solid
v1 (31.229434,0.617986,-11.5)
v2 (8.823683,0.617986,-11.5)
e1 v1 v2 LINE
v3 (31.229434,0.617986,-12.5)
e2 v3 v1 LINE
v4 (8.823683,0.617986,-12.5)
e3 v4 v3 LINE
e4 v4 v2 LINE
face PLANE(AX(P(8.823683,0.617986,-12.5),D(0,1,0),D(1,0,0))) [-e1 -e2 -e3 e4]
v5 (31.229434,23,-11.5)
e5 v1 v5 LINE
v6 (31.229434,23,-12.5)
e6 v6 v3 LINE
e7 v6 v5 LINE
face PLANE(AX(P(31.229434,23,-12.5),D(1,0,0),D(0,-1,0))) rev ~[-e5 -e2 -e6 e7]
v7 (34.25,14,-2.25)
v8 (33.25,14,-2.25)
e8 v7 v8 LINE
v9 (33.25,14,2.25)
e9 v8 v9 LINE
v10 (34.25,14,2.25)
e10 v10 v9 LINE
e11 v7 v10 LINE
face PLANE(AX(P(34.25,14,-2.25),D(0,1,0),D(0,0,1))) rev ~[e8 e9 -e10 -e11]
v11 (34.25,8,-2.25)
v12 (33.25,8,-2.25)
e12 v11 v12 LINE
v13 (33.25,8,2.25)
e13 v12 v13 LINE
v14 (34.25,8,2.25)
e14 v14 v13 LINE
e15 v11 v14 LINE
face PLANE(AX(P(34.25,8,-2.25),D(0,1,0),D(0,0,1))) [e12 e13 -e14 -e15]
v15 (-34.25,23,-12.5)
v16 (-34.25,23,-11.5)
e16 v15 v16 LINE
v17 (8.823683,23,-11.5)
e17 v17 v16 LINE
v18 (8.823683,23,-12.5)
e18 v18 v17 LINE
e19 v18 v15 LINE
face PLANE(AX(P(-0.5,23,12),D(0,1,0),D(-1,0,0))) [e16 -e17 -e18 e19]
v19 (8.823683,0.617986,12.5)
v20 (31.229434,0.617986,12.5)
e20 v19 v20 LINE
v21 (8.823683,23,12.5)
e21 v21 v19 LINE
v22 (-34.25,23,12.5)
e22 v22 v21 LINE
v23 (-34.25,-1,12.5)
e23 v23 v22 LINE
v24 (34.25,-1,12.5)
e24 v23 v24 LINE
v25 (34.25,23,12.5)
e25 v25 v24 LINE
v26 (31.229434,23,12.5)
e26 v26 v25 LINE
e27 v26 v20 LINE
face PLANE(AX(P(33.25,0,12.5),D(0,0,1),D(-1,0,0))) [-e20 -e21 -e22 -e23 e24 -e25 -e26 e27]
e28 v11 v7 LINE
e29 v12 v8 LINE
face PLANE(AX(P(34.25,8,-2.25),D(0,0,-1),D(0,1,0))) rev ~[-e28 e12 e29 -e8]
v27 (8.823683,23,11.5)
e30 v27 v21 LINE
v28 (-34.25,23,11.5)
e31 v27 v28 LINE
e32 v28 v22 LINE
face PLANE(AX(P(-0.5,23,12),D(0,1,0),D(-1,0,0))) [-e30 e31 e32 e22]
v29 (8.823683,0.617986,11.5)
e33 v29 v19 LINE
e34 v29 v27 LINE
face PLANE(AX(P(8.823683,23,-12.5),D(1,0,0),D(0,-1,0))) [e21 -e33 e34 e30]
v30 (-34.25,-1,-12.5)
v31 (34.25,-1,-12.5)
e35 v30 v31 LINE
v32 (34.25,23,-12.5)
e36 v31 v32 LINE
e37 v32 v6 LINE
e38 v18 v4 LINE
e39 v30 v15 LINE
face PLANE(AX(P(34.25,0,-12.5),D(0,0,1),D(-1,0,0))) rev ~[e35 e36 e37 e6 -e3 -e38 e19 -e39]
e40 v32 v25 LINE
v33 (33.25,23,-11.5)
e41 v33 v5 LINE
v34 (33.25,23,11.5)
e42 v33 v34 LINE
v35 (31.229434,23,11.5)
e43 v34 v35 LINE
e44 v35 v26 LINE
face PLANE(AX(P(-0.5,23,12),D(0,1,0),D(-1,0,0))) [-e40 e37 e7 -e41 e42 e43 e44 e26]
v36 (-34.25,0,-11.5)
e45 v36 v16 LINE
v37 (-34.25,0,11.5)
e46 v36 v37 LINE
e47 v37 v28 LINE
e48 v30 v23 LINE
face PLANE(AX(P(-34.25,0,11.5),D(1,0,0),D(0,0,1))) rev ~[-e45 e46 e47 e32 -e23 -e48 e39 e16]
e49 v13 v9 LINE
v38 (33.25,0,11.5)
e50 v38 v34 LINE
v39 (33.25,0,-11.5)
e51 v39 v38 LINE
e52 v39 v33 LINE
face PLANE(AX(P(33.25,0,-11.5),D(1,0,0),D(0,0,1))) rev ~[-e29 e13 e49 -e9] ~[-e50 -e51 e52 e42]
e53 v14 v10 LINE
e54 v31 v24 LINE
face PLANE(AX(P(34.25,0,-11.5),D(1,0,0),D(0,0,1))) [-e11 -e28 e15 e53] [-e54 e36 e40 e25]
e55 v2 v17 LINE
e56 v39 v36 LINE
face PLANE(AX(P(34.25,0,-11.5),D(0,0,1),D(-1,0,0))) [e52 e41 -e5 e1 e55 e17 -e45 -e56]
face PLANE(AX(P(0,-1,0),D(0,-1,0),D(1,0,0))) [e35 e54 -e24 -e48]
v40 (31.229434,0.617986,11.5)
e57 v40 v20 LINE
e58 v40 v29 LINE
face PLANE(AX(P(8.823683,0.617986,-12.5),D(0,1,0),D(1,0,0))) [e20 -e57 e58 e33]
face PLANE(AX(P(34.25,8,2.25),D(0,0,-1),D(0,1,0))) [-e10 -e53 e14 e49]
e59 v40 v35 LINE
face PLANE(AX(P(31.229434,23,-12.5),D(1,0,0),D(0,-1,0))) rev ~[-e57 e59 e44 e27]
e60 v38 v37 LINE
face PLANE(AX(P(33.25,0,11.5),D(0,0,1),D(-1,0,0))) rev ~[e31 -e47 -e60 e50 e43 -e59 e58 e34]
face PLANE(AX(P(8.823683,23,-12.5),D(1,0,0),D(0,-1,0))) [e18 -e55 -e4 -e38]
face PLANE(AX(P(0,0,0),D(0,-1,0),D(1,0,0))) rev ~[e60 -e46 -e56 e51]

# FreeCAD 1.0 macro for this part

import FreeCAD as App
import Part
import Sketcher
Q = App.Units.Quantity

doc = App.newDocument("Part")
body = doc.addObject("PartDesign::Body", "Body")

# Sketch on XZ plane
sketch1 = body.newObject("Sketcher::SketchObject", "Sketch")
sketch1.AttachmentSupport = (doc.getObject("XZ_Plane"), [""])
sketch1.MapMode = "FlatFace"
sketch1.addGeometry(Part.LineSegment(App.Vector(-34, 12, 0), App.Vector(-34, -12, 0)), False)
sketch1.addGeometry(Part.LineSegment(App.Vector(-34, -12, 0), App.Vector(34, -12, 0)), False)
sketch1.addGeometry(Part.LineSegment(App.Vector(34, -12, 0), App.Vector(34, 12, 0)), False)
sketch1.addGeometry(Part.LineSegment(App.Vector(34, 12, 0), App.Vector(-34, 12, 0)), False)
sketch1.addConstraint(Sketcher.Constraint("Coincident", 0, 2, 1, 1))
sketch1.addConstraint(Sketcher.Constraint("Coincident", 1, 2, 2, 1))
sketch1.addConstraint(Sketcher.Constraint("Coincident", 2, 2, 3, 1))
sketch1.addConstraint(Sketcher.Constraint("Coincident", 3, 2, 0, 1))
sketch1.addConstraint(Sketcher.Constraint("Vertical", 0))
sketch1.addConstraint(Sketcher.Constraint("Horizontal", 1))
sketch1.addConstraint(Sketcher.Constraint("Vertical", 2))
sketch1.addConstraint(Sketcher.Constraint("Horizontal", 3))
sketch1.addConstraint(Sketcher.Constraint("Symmetric", 0, 2, 2, 2, -1, 1))
sketch1.addConstraint(Sketcher.Constraint("DistanceY", 0, 2, 0, 1, Q("25 mm")))
sketch1.addConstraint(Sketcher.Constraint("DistanceX", 1, 1, 1, 2, Q("68.5 mm")))
pad1 = body.newObject("PartDesign::Pad", "Pad")
pad1.Profile = sketch1
pad1.Length = 1

# Sketch on XZ plane
sketch2 = body.newObject("Sketcher::SketchObject", "Sketch001")
sketch2.AttachmentSupport = (doc.getObject("XZ_Plane"), [""])
sketch2.MapMode = "FlatFace"
sketch2.addGeometry(Part.LineSegment(App.Vector(34.2, -11.5, 0), App.Vector(34.2, -12.5, 0)), False)
sketch2.addGeometry(Part.LineSegment(App.Vector(34.2, -12.5, 0), App.Vector(-34.2, -12.5, 0)), False)
sketch2.addGeometry(Part.LineSegment(App.Vector(-34.2, -12.5, 0), App.Vector(-34.2, -11.5, 0)), False)
sketch2.addGeometry(Part.LineSegment(App.Vector(-34.2, -11.5, 0), App.Vector(34.2, -11.5, 0)), False)
sketch2.addConstraint(Sketcher.Constraint("Coincident", 0, 2, 1, 1))
sketch2.addConstraint(Sketcher.Constraint("Coincident", 1, 2, 2, 1))
sketch2.addConstraint(Sketcher.Constraint("Coincident", 2, 2, 3, 1))
sketch2.addConstraint(Sketcher.Constraint("Coincident", 3, 2, 0, 1))
sketch2.addConstraint(Sketcher.Constraint("Vertical", 0))
sketch2.addConstraint(Sketcher.Constraint("Horizontal", 1))
sketch2.addConstraint(Sketcher.Constraint("Vertical", 2))
sketch2.addConstraint(Sketcher.Constraint("Horizontal", 3))
sketch2.addConstraint(Sketcher.Constraint("DistanceY", 0, 2, 0, 1, Q("1 mm")))
sketch2.addConstraint(Sketcher.Constraint("DistanceX", 1, 2, 1, 1, Q("68.5 mm")))
sketch2.addConstraint(Sketcher.Constraint("DistanceY", 0, 2, -1, 1, Q("12.5 mm")))
sketch2.addConstraint(Sketcher.Constraint("DistanceX", -1, 1, 0, 2, Q("34.25 mm")))
pad2 = body.newObject("PartDesign::Pad", "Pad001")
pad2.Profile = sketch2
pad2.Length = 23
pad2.Reversed = True

# Sketch on XZ plane
sketch3 = body.newObject("Sketcher::SketchObject", "Sketch002")
sketch3.AttachmentSupport = (doc.getObject("XZ_Plane"), [""])
sketch3.MapMode = "FlatFace"
sketch3.addGeometry(Part.LineSegment(App.Vector(34.2, 12.5, 0), App.Vector(34.2, -11.5, 0)), False)
sketch3.addGeometry(Part.LineSegment(App.Vector(34.2, -11.5, 0), App.Vector(33.2, -11.5, 0)), False)
sketch3.addGeometry(Part.LineSegment(App.Vector(33.2, -11.5, 0), App.Vector(33.2, 12.5, 0)), False)
sketch3.addGeometry(Part.LineSegment(App.Vector(33.2, 12.5, 0), App.Vector(34.2, 12.5, 0)), False)
sketch3.addConstraint(Sketcher.Constraint("Coincident", 0, 2, 1, 1))
sketch3.addConstraint(Sketcher.Constraint("Coincident", 1, 2, 2, 1))
sketch3.addConstraint(Sketcher.Constraint("Coincident", 2, 2, 3, 1))
sketch3.addConstraint(Sketcher.Constraint("Coincident", 3, 2, 0, 1))
sketch3.addConstraint(Sketcher.Constraint("Vertical", 0))
sketch3.addConstraint(Sketcher.Constraint("Horizontal", 1))
sketch3.addConstraint(Sketcher.Constraint("Vertical", 2))
sketch3.addConstraint(Sketcher.Constraint("Horizontal", 3))
sketch3.addConstraint(Sketcher.Constraint("DistanceX", 1, 2, 1, 1, Q("1 mm")))
sketch3.addConstraint(Sketcher.Constraint("DistanceY", 0, 2, 0, 1, Q("24 mm")))
sketch3.addConstraint(Sketcher.Constraint("DistanceY", 0, 2, -1, 1, Q("11.5 mm")))
sketch3.addConstraint(Sketcher.Constraint("DistanceX", -1, 1, 0, 2, Q("34.25 mm")))
pad3 = body.newObject("PartDesign::Pad", "Pad002")
pad3.Profile = sketch3
pad3.Length = 23
pad3.Reversed = True

# Sketch on XZ plane
sketch4 = body.newObject("Sketcher::SketchObject", "Sketch003")
sketch4.AttachmentSupport = (doc.getObject("XZ_Plane"), [""])
sketch4.MapMode = "FlatFace"
sketch4.addGeometry(Part.LineSegment(App.Vector(33.2, 12.5, 0), App.Vector(33.2, 11.5, 0)), False)
sketch4.addGeometry(Part.LineSegment(App.Vector(33.2, 11.5, 0), App.Vector(-34.2, 11.5, 0)), False)
sketch4.addGeometry(Part.LineSegment(App.Vector(-34.2, 11.5, 0), App.Vector(-34.2, 12.5, 0)), False)
sketch4.addGeometry(Part.LineSegment(App.Vector(-34.2, 12.5, 0), App.Vector(33.2, 12.5, 0)), False)
sketch4.addConstraint(Sketcher.Constraint("Coincident", 0, 2, 1, 1))
sketch4.addConstraint(Sketcher.Constraint("Coincident", 1, 2, 2, 1))
sketch4.addConstraint(Sketcher.Constraint("Coincident", 2, 2, 3, 1))
sketch4.addConstraint(Sketcher.Constraint("Coincident", 3, 2, 0, 1))
sketch4.addConstraint(Sketcher.Constraint("Vertical", 0))
sketch4.addConstraint(Sketcher.Constraint("Horizontal", 1))
sketch4.addConstraint(Sketcher.Constraint("Vertical", 2))
sketch4.addConstraint(Sketcher.Constraint("Horizontal", 3))
sketch4.addConstraint(Sketcher.Constraint("DistanceY", 0, 2, 0, 1, Q("1 mm")))
sketch4.addConstraint(Sketcher.Constraint("DistanceX", 1, 2, 1, 1, Q("67.5 mm")))
sketch4.addConstraint(Sketcher.Constraint("DistanceY", -1, 1, 0, 2, Q("11.5 mm")))
sketch4.addConstraint(Sketcher.Constraint("DistanceX", -1, 1, 0, 2, Q("33.25 mm")))
pad4 = body.newObject("PartDesign::Pad", "Pad003")
pad4.Profile = sketch4
pad4.Length = 23
pad4.Reversed = True

# Sketch on YZ plane
sketch5 = body.newObject("Sketcher::SketchObject", "Sketch004")
sketch5.AttachmentSupport = (doc.getObject("YZ_Plane"), [""])
sketch5.MapMode = "FlatFace"
sketch5.AttachmentOffset = App.Placement(App.Vector(0, 0, 34.25), App.Rotation())
sketch5.addGeometry(Part.LineSegment(App.Vector(8, 2.2, 0), App.Vector(8, -2.2, 0)), False)
sketch5.addGeometry(Part.LineSegment(App.Vector(8, -2.2, 0), App.Vector(14, -2.2, 0)), False)
sketch5.addGeometry(Part.LineSegment(App.Vector(14, -2.2, 0), App.Vector(14, 2.2, 0)), False)
sketch5.addGeometry(Part.LineSegment(App.Vector(14, 2.2, 0), App.Vector(8, 2.2, 0)), False)
sketch5.addConstraint(Sketcher.Constraint("Coincident", 0, 2, 1, 1))
sketch5.addConstraint(Sketcher.Constraint("Coincident", 1, 2, 2, 1))
sketch5.addConstraint(Sketcher.Constraint("Coincident", 2, 2, 3, 1))
sketch5.addConstraint(Sketcher.Constraint("Coincident", 3, 2, 0, 1))
sketch5.addConstraint(Sketcher.Constraint("Vertical", 0))
sketch5.addConstraint(Sketcher.Constraint("Horizontal", 1))
sketch5.addConstraint(Sketcher.Constraint("Vertical", 2))
sketch5.addConstraint(Sketcher.Constraint("Horizontal", 3))
sketch5.addConstraint(Sketcher.Constraint("DistanceX", 1, 1, 1, 2, Q("6 mm")))
sketch5.addConstraint(Sketcher.Constraint("DistanceY", 0, 2, 0, 1, Q("4.5 mm")))
sketch5.addConstraint(Sketcher.Constraint("DistanceX", -1, 1, 0, 2, Q("8 mm")))
sketch5.addConstraint(Sketcher.Constraint("DistanceY", 0, 2, -1, 1, Q("2.25 mm")))
pocket1 = body.newObject("PartDesign::Pocket", "Pocket")
pocket1.Profile = sketch5
pocket1.Type = "ThroughAll"

# Sketch on XY plane
sketch6 = body.newObject("Sketcher::SketchObject", "Sketch005")
sketch6.AttachmentSupport = (doc.getObject("XY_Plane"), [""])
sketch6.MapMode = "FlatFace"
sketch6.AttachmentOffset = App.Placement(App.Vector(0, 0, -12.5), App.Rotation())
sketch6.addGeometry(Part.LineSegment(App.Vector(9, 1, 0), App.Vector(9, 23, 0)), False)
sketch6.addGeometry(Part.LineSegment(App.Vector(9, 23, 0), App.Vector(31, 23, 0)), False)
sketch6.addGeometry(Part.LineSegment(App.Vector(31, 23, 0), App.Vector(31, 1, 0)), False)
sketch6.addGeometry(Part.LineSegment(App.Vector(31, 1, 0), App.Vector(9, 1, 0)), False)
sketch6.addConstraint(Sketcher.Constraint("Coincident", 0, 2, 1, 1))
sketch6.addConstraint(Sketcher.Constraint("Coincident", 1, 2, 2, 1))
sketch6.addConstraint(Sketcher.Constraint("Coincident", 2, 2, 3, 1))
sketch6.addConstraint(Sketcher.Constraint("Coincident", 3, 2, 0, 1))
sketch6.addConstraint(Sketcher.Constraint("Vertical", 0))
sketch6.addConstraint(Sketcher.Constraint("Horizontal", 1))
sketch6.addConstraint(Sketcher.Constraint("Vertical", 2))
sketch6.addConstraint(Sketcher.Constraint("Horizontal", 3))
sketch6.addConstraint(Sketcher.Constraint("DistanceY", -1, 1, 0, 2, Q("23 mm")))
sketch6.addConstraint(Sketcher.Constraint("DistanceX", 1, 1, 1, 2, Q("22.405751 mm")))
sketch6.addConstraint(Sketcher.Constraint("DistanceY", 0, 1, 0, 2, Q("22.382014 mm")))
sketch6.addConstraint(Sketcher.Constraint("DistanceX", -1, 1, 0, 2, Q("8.823683 mm")))
pocket2 = body.newObject("PartDesign::Pocket", "Pocket001")
pocket2.Profile = sketch6
pocket2.Length = 25
pocket2.Reversed = True

doc.recompute()
